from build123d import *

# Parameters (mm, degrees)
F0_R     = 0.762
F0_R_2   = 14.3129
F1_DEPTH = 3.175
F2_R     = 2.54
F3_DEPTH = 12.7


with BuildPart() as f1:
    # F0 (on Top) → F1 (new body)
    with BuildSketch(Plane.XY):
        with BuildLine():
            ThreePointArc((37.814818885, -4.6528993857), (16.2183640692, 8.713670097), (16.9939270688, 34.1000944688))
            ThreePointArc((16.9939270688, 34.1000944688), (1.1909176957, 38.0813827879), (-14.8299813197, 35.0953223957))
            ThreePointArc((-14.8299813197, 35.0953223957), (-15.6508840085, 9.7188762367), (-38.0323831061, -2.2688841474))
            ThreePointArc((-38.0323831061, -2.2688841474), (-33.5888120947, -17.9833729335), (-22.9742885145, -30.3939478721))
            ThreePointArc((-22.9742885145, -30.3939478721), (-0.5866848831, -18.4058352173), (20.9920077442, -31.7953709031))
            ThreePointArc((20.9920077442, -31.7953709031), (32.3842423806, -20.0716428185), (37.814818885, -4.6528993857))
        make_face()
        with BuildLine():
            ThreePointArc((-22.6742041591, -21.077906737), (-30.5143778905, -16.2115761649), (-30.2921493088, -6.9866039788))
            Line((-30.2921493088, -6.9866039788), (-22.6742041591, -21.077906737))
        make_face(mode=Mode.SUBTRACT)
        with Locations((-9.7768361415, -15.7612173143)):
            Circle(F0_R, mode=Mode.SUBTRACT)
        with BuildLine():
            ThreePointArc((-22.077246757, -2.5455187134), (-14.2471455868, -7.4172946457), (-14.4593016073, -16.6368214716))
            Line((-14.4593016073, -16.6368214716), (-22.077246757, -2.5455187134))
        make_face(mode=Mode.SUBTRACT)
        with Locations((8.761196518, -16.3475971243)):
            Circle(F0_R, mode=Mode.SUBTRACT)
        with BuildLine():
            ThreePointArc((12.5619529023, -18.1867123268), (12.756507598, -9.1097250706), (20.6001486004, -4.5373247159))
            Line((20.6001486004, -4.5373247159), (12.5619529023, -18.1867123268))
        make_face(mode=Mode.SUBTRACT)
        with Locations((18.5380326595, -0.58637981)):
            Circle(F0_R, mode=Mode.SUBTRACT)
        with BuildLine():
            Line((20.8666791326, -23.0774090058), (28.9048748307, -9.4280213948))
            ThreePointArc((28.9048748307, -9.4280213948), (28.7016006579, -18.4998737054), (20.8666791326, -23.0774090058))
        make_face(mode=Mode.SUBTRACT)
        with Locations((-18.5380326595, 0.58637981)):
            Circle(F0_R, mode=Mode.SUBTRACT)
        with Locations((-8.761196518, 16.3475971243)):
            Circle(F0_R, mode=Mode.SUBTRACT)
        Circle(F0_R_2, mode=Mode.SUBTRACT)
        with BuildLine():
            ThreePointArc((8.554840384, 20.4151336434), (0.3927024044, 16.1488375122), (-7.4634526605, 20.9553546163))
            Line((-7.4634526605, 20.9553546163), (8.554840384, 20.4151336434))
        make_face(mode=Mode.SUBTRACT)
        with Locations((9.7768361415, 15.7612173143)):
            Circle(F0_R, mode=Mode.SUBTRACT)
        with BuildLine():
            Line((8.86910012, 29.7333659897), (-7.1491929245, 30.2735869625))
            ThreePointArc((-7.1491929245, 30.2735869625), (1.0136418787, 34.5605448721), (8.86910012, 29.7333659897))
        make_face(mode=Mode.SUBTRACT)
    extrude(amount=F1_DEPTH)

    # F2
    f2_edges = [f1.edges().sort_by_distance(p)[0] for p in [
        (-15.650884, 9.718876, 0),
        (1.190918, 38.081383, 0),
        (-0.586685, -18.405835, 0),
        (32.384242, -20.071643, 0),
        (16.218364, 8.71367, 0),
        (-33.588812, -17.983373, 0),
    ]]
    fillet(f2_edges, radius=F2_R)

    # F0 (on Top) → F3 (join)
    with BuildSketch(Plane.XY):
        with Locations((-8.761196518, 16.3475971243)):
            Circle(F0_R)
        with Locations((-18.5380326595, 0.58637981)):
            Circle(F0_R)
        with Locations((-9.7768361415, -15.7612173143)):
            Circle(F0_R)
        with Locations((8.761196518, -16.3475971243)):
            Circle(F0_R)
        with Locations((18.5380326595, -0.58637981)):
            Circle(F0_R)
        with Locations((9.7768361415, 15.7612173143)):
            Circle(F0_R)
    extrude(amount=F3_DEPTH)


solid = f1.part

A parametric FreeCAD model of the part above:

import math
import FreeCAD as App
import Part
import Sketcher
Q = App.Units.Quantity


def edges_at(feature, points):
    """Names of the edges that pass closest to the given points."""
    edges = feature.Shape.Edges
    near = lambda p: min(range(len(edges)), key=lambda i: edges[i].distToShape(Part.Vertex(*p))[0])
    return sorted({f"Edge{near(p) + 1}" for p in points})

doc = App.newDocument("Part")
body = doc.addObject("PartDesign::Body", "Body")

# Sketch on XY plane
sketch1 = body.newObject("Sketcher::SketchObject", "Sketch")
sketch1.AttachmentSupport = (doc.getObject("XY_Plane"), [""])
sketch1.MapMode = "FlatFace"
sketch1.addGeometry([
    Part.ArcOfCircle(Part.Circle(App.Vector(38.6, 20.7, 0), App.Vector(0, 0, 1), 25.4), math.radians(148), math.radians(268)),  # 0
    Part.ArcOfCircle(Part.Circle(App.Vector(0, 0, 0), App.Vector(0, 0, 1), 38.1), math.radians(64), math.radians(113)),  # 1
    Part.ArcOfCircle(Part.Circle(App.Vector(-37.2, 23.1, 0), App.Vector(0, 0, 1), 25.4), math.radians(-92), math.radians(28)),  # 2
    Part.ArcOfCircle(Part.Circle(App.Vector(0, 0, 0), App.Vector(0, 0, 1), 38.1), math.radians(-177), math.radians(-127)),  # 3
    Part.ArcOfCircle(Part.Circle(App.Vector(-1.4, -43.8, 0), App.Vector(0, 0, 1), 25.4), math.radians(28), math.radians(148)),  # 4
    Part.ArcOfCircle(Part.Circle(App.Vector(0, 0, 0), App.Vector(0, 0, 1), 38.1), math.radians(-57), math.radians(-7)),  # 5
    Part.LineSegment(App.Vector(-30.3, -7, 0), App.Vector(-22.7, -21.1, 0)),  # 6
    Part.ArcOfCircle(Part.Circle(App.Vector(-22.3, -11.8, 0), App.Vector(0, 0, 1), 9.3), math.radians(149), math.radians(268)),  # 7
    Part.LineSegment(App.Vector(-14.5, -16.6, 0), App.Vector(-22.1, -2.5, 0)),  # 8
    Part.ArcOfCircle(Part.Circle(App.Vector(-22.4, -11.8, 0), App.Vector(0, 0, 1), 9.3), math.radians(-31), math.radians(88)),  # 9
    Part.Circle(App.Vector(-9.8, -15.8, 0), App.Vector(0, 0, 1), 0.8),  # 10
    Part.Circle(App.Vector(-18.5, 0.6, 0), App.Vector(0, 0, 1), 0.8),  # 11
    Part.Circle(App.Vector(8.8, -16.3, 0), App.Vector(0, 0, 1), 0.8),  # 12
    Part.ArcOfCircle(Part.Circle(App.Vector(20.7, -13.8, 0), App.Vector(0, 0, 1), 9.3), math.radians(-89), math.radians(28)),  # 13
    Part.LineSegment(App.Vector(20.9, -23.1, 0), App.Vector(28.9, -9.4, 0)),  # 14
    Part.LineSegment(App.Vector(20.6, -4.5, 0), App.Vector(12.6, -18.2, 0)),  # 15
    Part.ArcOfCircle(Part.Circle(App.Vector(20.8, -13.8, 0), App.Vector(0, 0, 1), 9.3), math.radians(91), math.radians(208)),  # 16
    Part.Circle(App.Vector(0, 0, 0), App.Vector(0, 0, 1), 14.3),  # 17
    Part.Circle(App.Vector(18.5, -0.6, 0), App.Vector(0, 0, 1), 0.8),  # 18
    Part.Circle(App.Vector(-8.8, 16.3, 0), App.Vector(0, 0, 1), 0.8),  # 19
    Part.LineSegment(App.Vector(-7.5, 21, 0), App.Vector(8.6, 20.4, 0)),  # 20
    Part.ArcOfCircle(Part.Circle(App.Vector(0.7, 25.5, 0), App.Vector(0, 0, 1), 9.3), math.radians(-151), math.radians(-33)),  # 21
    Part.Circle(App.Vector(9.8, 15.8, 0), App.Vector(0, 0, 1), 0.8),  # 22
    Part.ArcOfCircle(Part.Circle(App.Vector(0.7, 25.2, 0), App.Vector(0, 0, 1), 9.3), math.radians(29), math.radians(147)),  # 23
    Part.LineSegment(App.Vector(8.9, 29.7, 0), App.Vector(-7.1, 30.3, 0)),  # 24
], False)
sketch1.addConstraint([
    Sketcher.Constraint("Coincident", 0, 1, 1, 1),
    Sketcher.Constraint("Coincident", 1, 2, 2, 2),
    Sketcher.Constraint("Coincident", 2, 1, 3, 1),
    Sketcher.Constraint("Coincident", 3, 2, 4, 2),
    Sketcher.Constraint("Coincident", 4, 1, 5, 1),
    Sketcher.Constraint("Coincident", 5, 2, 0, 2),
    Sketcher.Constraint("Coincident", 6, 1, 7, 1),
    Sketcher.Constraint("Coincident", 7, 2, 6, 2),
    Sketcher.Constraint("Coincident", 8, 1, 9, 1),
    Sketcher.Constraint("Coincident", 9, 2, 8, 2),
    Sketcher.Constraint("Coincident", 13, 1, 14, 1),
    Sketcher.Constraint("Coincident", 14, 2, 13, 2),
    Sketcher.Constraint("Coincident", 15, 1, 16, 1),
    Sketcher.Constraint("Coincident", 16, 2, 15, 2),
    Sketcher.Constraint("Coincident", 20, 1, 21, 1),
    Sketcher.Constraint("Coincident", 21, 2, 20, 2),
    Sketcher.Constraint("Coincident", 23, 1, 24, 1),
    Sketcher.Constraint("Coincident", 24, 2, 23, 2),
    Sketcher.Constraint("Coincident", 1, 3, -1, 1),
    Sketcher.Constraint("Coincident", 3, 3, -1, 1),
    Sketcher.Constraint("Coincident", 5, 3, -1, 1),
    Sketcher.Constraint("Coincident", 17, 3, -1, 1),
    Sketcher.Constraint("Equal", 0, 2),
    Sketcher.Constraint("Equal", 1, 3),
    Sketcher.Constraint("Equal", 2, 4),
    Sketcher.Constraint("Equal", 3, 5),
    Sketcher.Constraint("Equal", 10, 11),
    Sketcher.Constraint("Equal", 11, 12),
    Sketcher.Constraint("Equal", 12, 18),
    Sketcher.Constraint("Equal", 18, 19),
    Sketcher.Constraint("Equal", 19, 22),
    Sketcher.Constraint("Symmetric", 11, 3, 18, 3, -1, 1),
    Sketcher.Constraint("Symmetric", 12, 3, 19, 3, -1, 1),
    Sketcher.Constraint("Symmetric", 10, 3, 22, 3, -1, 1),
    Sketcher.Constraint("Parallel", 6, 8),
    Sketcher.Constraint("Parallel", 14, 15),
    Sketcher.Constraint("Parallel", 20, 24),
    Sketcher.Constraint("Equal", 6, 8),
    Sketcher.Constraint("Equal", 14, 15),
    Sketcher.Constraint("Equal", 20, 24),
    Sketcher.Constraint("Radius", 0, Q("1 in")),
    Sketcher.Constraint("Radius", 1, Q("1.5 in")),
    Sketcher.Constraint("Diameter", 10, Q("0.06 in")),
    Sketcher.Constraint("Diameter", 17, Q("1.127 in")),
    Sketcher.Constraint("Distance", 20, Q("0.631 in")),
    Sketcher.Constraint("Radius", 13, Q("9.296909 mm")),
    Sketcher.Constraint("Radius", 16, Q("9.285821 mm")),
    Sketcher.Constraint("Radius", 7, Q("9.290567 mm")),
    Sketcher.Constraint("Radius", 9, Q("9.302374 mm")),
    Sketcher.Constraint("Radius", 21, Q("9.343693 mm")),
    Sketcher.Constraint("Radius", 23, Q("9.321955 mm")),
    Sketcher.Constraint("DistanceY", 5, 2, -1, 1, Q("4.652899 mm")),
    Sketcher.Constraint("DistanceX", 8, 1, -1, 1, Q("14.459302 mm")),
    Sketcher.Constraint("DistanceX", -1, 1, 23, 1, Q("8.8691 mm")),
    Sketcher.Constraint("DistanceY", 7, 3, 2, 3, Q("34.911699 mm")),
    Sketcher.Constraint("DistanceX", 9, 3, 7, 3, Q("0.088602 mm")),
    Sketcher.Constraint("DistanceY", 9, 3, 7, 3, Q("0.047899 mm")),
    Sketcher.Constraint("DistanceX", 18, 3, 16, 3, Q("2.219898 mm")),
    Sketcher.Constraint("DistanceX", 23, 3, 22, 3, Q("9.077401 mm")),
    Sketcher.Constraint("DistanceY", 21, 3, 1, 2, Q("9.608101 mm")),
    Sketcher.Constraint("DistanceY", 9, 2, 11, 3, Q("3.131899 mm")),
    Sketcher.Constraint("DistanceX", 21, 3, 21, 2, Q("7.847199 mm")),
    Sketcher.Constraint("DistanceY", 4, 3, -1, 1, Q("43.792942 mm")),
    Sketcher.Constraint("DistanceY", -1, 1, 11, 3, Q("0.58638 mm")),
    Sketcher.Constraint("DistanceX", -1, 1, 16, 3, Q("20.757931 mm")),
    Sketcher.Constraint("DistanceX", -1, 1, 21, 3, Q("0.707642 mm")),
    Sketcher.Constraint("DistanceY", -1, 1, 21, 3, Q("25.487221 mm")),
    Sketcher.Constraint("DistanceX", 3, 2, -1, 1, Q("22.974289 mm")),
    Sketcher.Constraint("DistanceX", 6, 1, -1, 1, Q("30.292149 mm")),
    Sketcher.Constraint("DistanceY", 8, 1, -1, 1, Q("16.636821 mm")),
    Sketcher.Constraint("DistanceX", -1, 1, 13, 1, Q("20.866679 mm")),
    Sketcher.Constraint("DistanceY", 13, 1, -1, 1, Q("23.077409 mm")),
    Sketcher.Constraint("DistanceY", 14, 2, -1, 1, Q("9.428021 mm")),
    Sketcher.Constraint("DistanceX", -1, 1, 15, 1, Q("20.600149 mm")),
    Sketcher.Constraint("DistanceY", 0, 3, 2, 3, Q("2.383242 mm")),
    Sketcher.Constraint("DistanceY", 12, 3, 10, 3, Q("0.58638 mm")),
    Sketcher.Constraint("DistanceY", 12, 3, 13, 3, Q("2.56543 mm")),
    Sketcher.Constraint("DistanceX", 19, 3, 21, 3, Q("9.468838 mm")),
    Sketcher.Constraint("DistanceY", 19, 3, 23, 3, Q("8.896289 mm")),
    Sketcher.Constraint("DistanceY", 16, 3, -1, 1, Q("13.821805 mm")),
])
pad1 = body.newObject("PartDesign::Pad", "Pad")
pad1.Profile = sketch1
pad1.Length = Q("0.125 in")
doc.recompute()

fillet = body.newObject("PartDesign::Fillet", "Fillet")
fillet.Base = (pad1, edges_at(pad1, [
    (-15.651, 9.719, 0),
    (1.191, 38.081, 0),
    (-0.587, -18.406, 0),
    (32.384, -20.072, 0),
    (16.218, 8.714, 0),
    (-33.589, -17.983, 0),
]))
fillet.Radius = Q("0.1 in")

# Sketch on XY plane
sketch2 = body.newObject("Sketcher::SketchObject", "Sketch001")
sketch2.AttachmentSupport = (doc.getObject("XY_Plane"), [""])
sketch2.MapMode = "FlatFace"
sketch2.addGeometry([
    Part.Circle(App.Vector(-8.8, 16.3, 0), App.Vector(0, 0, 1), 0.8),  # 0
    Part.Circle(App.Vector(-18.5, 0.6, 0), App.Vector(0, 0, 1), 0.8),  # 1
    Part.Circle(App.Vector(-9.8, -15.8, 0), App.Vector(0, 0, 1), 0.8),  # 2
    Part.Circle(App.Vector(8.8, -16.3, 0), App.Vector(0, 0, 1), 0.8),  # 3
    Part.Circle(App.Vector(18.5, -0.6, 0), App.Vector(0, 0, 1), 0.8),  # 4
    Part.Circle(App.Vector(9.8, 15.8, 0), App.Vector(0, 0, 1), 0.8),  # 5
], False)
sketch2.addConstraint([
    Sketcher.Constraint("Equal", 0, 1),
    Sketcher.Constraint("Equal", 1, 2),
    Sketcher.Constraint("Equal", 2, 3),
    Sketcher.Constraint("Equal", 3, 4),
    Sketcher.Constraint("Equal", 4, 5),
    Sketcher.Constraint("Symmetric", 0, 3, 3, 3, -1, 1),
    Sketcher.Constraint("Symmetric", 1, 3, 4, 3, -1, 1),
    Sketcher.Constraint("Symmetric", 2, 3, 5, 3, -1, 1),
    Sketcher.Constraint("Diameter", 0, Q("0.06 in")),
    Sketcher.Constraint("DistanceY", -1, 1, 1, 3, Q("0.58638 mm")),
    Sketcher.Constraint("DistanceX", 2, 3, 0, 3, Q("1.01564 mm")),
    Sketcher.Constraint("DistanceY", 3, 3, 2, 3, Q("0.58638 mm")),
    Sketcher.Constraint("DistanceX", 1, 3, 3, 3, Q("27.299229 mm")),
    Sketcher.Constraint("DistanceX", 0, 3, -1, 1, Q("8.761197 mm")),
    Sketcher.Constraint("DistanceY", -1, 1, 0, 3, Q("16.347597 mm")),
])
pad2 = body.newObject("PartDesign::Pad", "Pad001")
pad2.Profile = sketch2
pad2.Length = Q("0.5 in")

doc.recompute()
